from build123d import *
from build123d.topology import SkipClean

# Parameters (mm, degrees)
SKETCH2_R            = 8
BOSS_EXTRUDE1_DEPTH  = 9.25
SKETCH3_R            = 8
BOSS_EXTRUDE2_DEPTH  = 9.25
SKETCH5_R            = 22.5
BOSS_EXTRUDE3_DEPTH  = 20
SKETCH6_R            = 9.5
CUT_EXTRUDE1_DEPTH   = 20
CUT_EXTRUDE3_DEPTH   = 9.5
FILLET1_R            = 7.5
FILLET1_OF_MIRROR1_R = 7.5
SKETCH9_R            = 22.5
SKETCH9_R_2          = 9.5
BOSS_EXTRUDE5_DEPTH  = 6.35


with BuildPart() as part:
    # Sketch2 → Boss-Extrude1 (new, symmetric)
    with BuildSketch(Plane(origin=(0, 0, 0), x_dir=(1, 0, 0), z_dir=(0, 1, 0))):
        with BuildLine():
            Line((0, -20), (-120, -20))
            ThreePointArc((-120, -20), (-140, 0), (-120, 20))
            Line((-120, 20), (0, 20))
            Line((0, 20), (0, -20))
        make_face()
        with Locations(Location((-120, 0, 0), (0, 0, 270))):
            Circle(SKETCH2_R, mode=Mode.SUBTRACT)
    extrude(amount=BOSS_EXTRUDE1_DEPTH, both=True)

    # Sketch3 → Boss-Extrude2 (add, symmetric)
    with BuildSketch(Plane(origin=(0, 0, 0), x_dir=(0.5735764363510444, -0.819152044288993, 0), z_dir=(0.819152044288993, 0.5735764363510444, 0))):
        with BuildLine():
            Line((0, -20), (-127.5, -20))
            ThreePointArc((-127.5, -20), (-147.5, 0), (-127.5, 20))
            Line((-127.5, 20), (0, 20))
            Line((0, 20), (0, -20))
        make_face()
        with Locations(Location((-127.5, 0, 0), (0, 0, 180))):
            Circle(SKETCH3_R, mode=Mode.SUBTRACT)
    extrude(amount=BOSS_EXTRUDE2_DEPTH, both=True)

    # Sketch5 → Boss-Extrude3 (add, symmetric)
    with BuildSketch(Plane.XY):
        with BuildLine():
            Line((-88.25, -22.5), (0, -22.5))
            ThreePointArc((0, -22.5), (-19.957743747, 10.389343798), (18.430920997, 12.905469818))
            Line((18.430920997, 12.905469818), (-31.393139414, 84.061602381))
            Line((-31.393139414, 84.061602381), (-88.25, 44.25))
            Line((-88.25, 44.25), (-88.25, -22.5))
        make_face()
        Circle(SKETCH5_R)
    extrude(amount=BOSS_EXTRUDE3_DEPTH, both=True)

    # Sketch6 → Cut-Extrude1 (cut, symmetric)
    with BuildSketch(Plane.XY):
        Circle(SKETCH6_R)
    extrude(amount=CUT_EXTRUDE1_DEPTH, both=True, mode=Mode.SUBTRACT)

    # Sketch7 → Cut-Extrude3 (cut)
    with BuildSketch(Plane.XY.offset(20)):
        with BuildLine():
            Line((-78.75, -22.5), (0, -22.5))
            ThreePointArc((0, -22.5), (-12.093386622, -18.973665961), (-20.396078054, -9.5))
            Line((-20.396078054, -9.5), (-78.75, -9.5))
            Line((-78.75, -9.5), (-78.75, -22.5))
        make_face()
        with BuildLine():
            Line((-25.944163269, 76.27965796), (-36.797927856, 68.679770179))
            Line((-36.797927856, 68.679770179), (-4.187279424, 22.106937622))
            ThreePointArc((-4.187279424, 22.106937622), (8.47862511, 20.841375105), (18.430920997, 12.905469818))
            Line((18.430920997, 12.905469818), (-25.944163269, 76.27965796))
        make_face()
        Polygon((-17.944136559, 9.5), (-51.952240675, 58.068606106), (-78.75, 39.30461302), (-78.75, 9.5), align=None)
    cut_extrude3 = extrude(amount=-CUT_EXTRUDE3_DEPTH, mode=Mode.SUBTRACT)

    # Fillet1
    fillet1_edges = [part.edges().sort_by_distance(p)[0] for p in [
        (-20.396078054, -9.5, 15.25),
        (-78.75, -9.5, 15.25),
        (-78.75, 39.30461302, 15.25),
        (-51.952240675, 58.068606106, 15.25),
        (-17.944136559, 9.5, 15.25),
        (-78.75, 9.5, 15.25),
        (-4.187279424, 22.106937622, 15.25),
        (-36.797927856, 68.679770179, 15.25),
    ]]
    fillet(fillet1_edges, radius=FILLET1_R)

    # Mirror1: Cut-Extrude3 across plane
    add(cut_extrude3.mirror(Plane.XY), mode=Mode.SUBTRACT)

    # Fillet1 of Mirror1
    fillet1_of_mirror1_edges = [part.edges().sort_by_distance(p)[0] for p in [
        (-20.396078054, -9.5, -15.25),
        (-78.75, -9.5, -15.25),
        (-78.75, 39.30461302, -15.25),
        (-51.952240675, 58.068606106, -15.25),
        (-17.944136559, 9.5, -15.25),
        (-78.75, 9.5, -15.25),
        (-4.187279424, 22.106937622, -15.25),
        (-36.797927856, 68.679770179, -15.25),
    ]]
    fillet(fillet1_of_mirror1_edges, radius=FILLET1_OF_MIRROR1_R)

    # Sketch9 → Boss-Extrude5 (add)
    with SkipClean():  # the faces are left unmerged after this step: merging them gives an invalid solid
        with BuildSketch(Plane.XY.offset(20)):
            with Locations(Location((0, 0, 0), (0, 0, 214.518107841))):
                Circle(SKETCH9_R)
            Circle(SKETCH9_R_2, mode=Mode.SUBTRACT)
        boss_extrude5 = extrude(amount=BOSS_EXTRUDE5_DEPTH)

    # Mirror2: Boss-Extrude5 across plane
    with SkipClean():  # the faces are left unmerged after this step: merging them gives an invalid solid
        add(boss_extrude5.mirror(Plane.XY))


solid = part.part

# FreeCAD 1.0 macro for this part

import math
import FreeCAD as App
import Part
import Sketcher
from FreeCAD import Vector
Q = App.Units.Quantity


def edges_at(feature, points):
    """Names of the edges that pass closest to the given points."""
    edges = feature.Shape.Edges
    near = lambda p: min(range(len(edges)), key=lambda i: edges[i].distToShape(Part.Vertex(*p))[0])
    return sorted({f"Edge{near(p) + 1}" for p in points})


def add_polygon(sketch, points):
    """Adds a closed chain of lines whose ends are joined by coincident constraints."""
    first, n = sketch.GeometryCount, len(points)
    for a, b in zip(points, points[1:] + points[:1]):
        sketch.addGeometry(Part.LineSegment(App.Vector(*a, 0), App.Vector(*b, 0)), False)
    for i in range(n):
        sketch.addConstraint(Sketcher.Constraint("Coincident", first + i, 2, first + (i + 1) % n, 1))

doc = App.newDocument("Part")
body = doc.addObject("PartDesign::Body", "Body")

# Sketch on XZ plane
sketch1 = body.newObject("Sketcher::SketchObject", "Sketch")
sketch1.AttachmentSupport = (doc.getObject("XZ_Plane"), [""])
sketch1.MapMode = "FlatFace"
sketch1.addGeometry(Part.LineSegment(Vector(-120, 20, 0), Vector(0, 20, 0)), False)
sketch1.addGeometry(Part.LineSegment(Vector(0, 20, 0), Vector(0, -20, 0)), False)
sketch1.addGeometry(Part.LineSegment(Vector(0, -20, 0), Vector(-120, -20, 0)), False)
sketch1.addGeometry(Part.ArcOfCircle(Part.Circle(Vector(-120, 0, 0), Vector(0, 0, 1), 20), math.radians(90), math.radians(270)), False)
sketch1.addGeometry(Part.Circle(Vector(-120, 0, 0), Vector(0, 0, 1), 8), False)
sketch1.addConstraint(Sketcher.Constraint("Coincident", 0, 2, 1, 1))
sketch1.addConstraint(Sketcher.Constraint("Coincident", 1, 2, 2, 1))
sketch1.addConstraint(Sketcher.Constraint("Tangent", 2, 2, 3, 2))
sketch1.addConstraint(Sketcher.Constraint("Tangent", 3, 1, 0, 1))
sketch1.addConstraint(Sketcher.Constraint("Horizontal", 0))
sketch1.addConstraint(Sketcher.Constraint("Vertical", 1))
sketch1.addConstraint(Sketcher.Constraint("Horizontal", 2))
sketch1.addConstraint(Sketcher.Constraint("Coincident", 4, 3, 3, 3))
sketch1.addConstraint(Sketcher.Constraint("Symmetric", 0, 2, 1, 2, -1, 1))
sketch1.addConstraint(Sketcher.Constraint("Diameter", 4, 16.0))
sketch1.addConstraint(Sketcher.Constraint("Radius", 3, 20.0))
sketch1.addConstraint(Sketcher.Constraint("DistanceX", 0, 1, 0, 2, 120.0))
pad1 = body.newObject("PartDesign::Pad", "Pad")
pad1.Profile = sketch1
pad1.Length = 18.5
pad1.Midplane = True

# Sketch on an angled plane
sketch2 = body.newObject("Sketcher::SketchObject", "Sketch001")
sketch2.Placement = App.Placement(Vector(0, 0, 0), App.Rotation(Vector(0.573576436, -0.819152044, 0), Vector(0, 0, -0.999999999), Vector(0.819152044, 0.573576436, 0), "ZXY"))
sketch2.addGeometry(Part.LineSegment(Vector(-127.5, -20, 0), Vector(0, -20, 0)), False)
sketch2.addGeometry(Part.LineSegment(Vector(0, -20, 0), Vector(0, 20, 0)), False)
sketch2.addGeometry(Part.LineSegment(Vector(0, 20, 0), Vector(-127.5, 20, 0)), False)
sketch2.addGeometry(Part.ArcOfCircle(Part.Circle(Vector(-127.5, 0, 0), Vector(0, 0, 1), 20), math.radians(90), math.radians(270)), False)
sketch2.addGeometry(Part.Circle(Vector(-127.5, 0, 0), Vector(0, 0, 1), 8), False)
sketch2.addConstraint(Sketcher.Constraint("Coincident", 0, 2, 1, 1))
sketch2.addConstraint(Sketcher.Constraint("Coincident", 1, 2, 2, 1))
sketch2.addConstraint(Sketcher.Constraint("Tangent", 2, 2, 3, 1))
sketch2.addConstraint(Sketcher.Constraint("Tangent", 3, 2, 0, 1))
sketch2.addConstraint(Sketcher.Constraint("Horizontal", 0))
sketch2.addConstraint(Sketcher.Constraint("Vertical", 1))
sketch2.addConstraint(Sketcher.Constraint("Horizontal", 2))
sketch2.addConstraint(Sketcher.Constraint("Coincident", 4, 3, 3, 3))
sketch2.addConstraint(Sketcher.Constraint("Symmetric", 0, 2, 1, 2, -1, 1))
sketch2.addConstraint(Sketcher.Constraint("Diameter", 4, 16.0))
sketch2.addConstraint(Sketcher.Constraint("Radius", 3, 20.0))
sketch2.addConstraint(Sketcher.Constraint("DistanceX", 0, 1, 0, 2, 127.5))
pad2 = body.newObject("PartDesign::Pad", "Pad001")
pad2.Profile = sketch2
pad2.Length = 18.5
pad2.Midplane = True

# Sketch on XY plane
sketch3 = body.newObject("Sketcher::SketchObject", "Sketch002")
sketch3.AttachmentSupport = (doc.getObject("XY_Plane"), [""])
sketch3.MapMode = "FlatFace"
sketch3.addGeometry(Part.LineSegment(Vector(-88.25, -22.5, 0), Vector(0, -22.5, 0)), False)
sketch3.addGeometry(Part.ArcOfCircle(Part.Circle(Vector(0, 0, 0), Vector(0, 0, 1), 22.5), math.radians(-90), math.radians(35)), False)
sketch3.addGeometry(Part.LineSegment(Vector(18.430921, 12.90547, 0), Vector(-31.393139, 84.061602, 0)), False)
sketch3.addGeometry(Part.LineSegment(Vector(-31.393139, 84.061602, 0), Vector(-88.25, 44.25, 0)), False)
sketch3.addGeometry(Part.LineSegment(Vector(-88.25, 44.25, 0), Vector(-88.25, -22.5, 0)), False)
sketch3.addConstraint(Sketcher.Constraint("Tangent", 0, 2, 1, 1))
sketch3.addConstraint(Sketcher.Constraint("Tangent", 1, 2, 2, 1))
sketch3.addConstraint(Sketcher.Constraint("Coincident", 2, 2, 3, 1))
sketch3.addConstraint(Sketcher.Constraint("Coincident", 3, 2, 4, 1))
sketch3.addConstraint(Sketcher.Constraint("Coincident", 4, 2, 0, 1))
sketch3.addConstraint(Sketcher.Constraint("Horizontal", 0))
sketch3.addConstraint(Sketcher.Constraint("Vertical", 4))
sketch3.addConstraint(Sketcher.Constraint("Coincident", 1, 3, -1, 1))
sketch3.addConstraint(Sketcher.Constraint("Perpendicular", 2, 3))
sketch3.addConstraint(Sketcher.Constraint("Radius", 1, 22.5))
sketch3.addConstraint(Sketcher.Constraint("Angle", 2, Q("125 deg")))
sketch3.addConstraint(Sketcher.Constraint("DistanceX", 0, 1, 0, 2, 88.25))
sketch3.addConstraint(Sketcher.Constraint("DistanceY", 4, 2, 4, 1, 66.75))
pad3 = body.newObject("PartDesign::Pad", "Pad002")
pad3.Profile = sketch3
pad3.Length = 40
pad3.Midplane = True

# Sketch on XY plane
sketch4 = body.newObject("Sketcher::SketchObject", "Sketch003")
sketch4.AttachmentSupport = (doc.getObject("XY_Plane"), [""])
sketch4.MapMode = "FlatFace"
sketch4.addGeometry(Part.Circle(Vector(0, 0, 0), Vector(0, 0, 1), 9.5), False)
sketch4.addConstraint(Sketcher.Constraint("Coincident", 0, 3, -1, 1))
sketch4.addConstraint(Sketcher.Constraint("Diameter", 0, 19.0))
pocket1 = body.newObject("PartDesign::Pocket", "Pocket")
pocket1.Profile = sketch4
pocket1.Length = 40
pocket1.Midplane = True

# Sketch on XY plane
sketch5 = body.newObject("Sketcher::SketchObject", "Sketch004")
sketch5.AttachmentSupport = (doc.getObject("XY_Plane"), [""])
sketch5.MapMode = "FlatFace"
sketch5.AttachmentOffset = App.Placement(Vector(0, 0, 20), App.Rotation())
sketch5.addGeometry(Part.LineSegment(Vector(-78.75, -22.5, 0), Vector(0, -22.5, 0)), False)  # 0
sketch5.addGeometry(Part.ArcOfCircle(Part.Circle(Vector(0, 0, 0), Vector(0, 0, 1), 22.5), math.radians(-155.025035), math.radians(-90)), False)  # 1
sketch5.addGeometry(Part.LineSegment(Vector(-20.396078, -9.5, 0), Vector(-78.75, -9.5, 0)), False)  # 2
sketch5.addGeometry(Part.LineSegment(Vector(-78.75, -9.5, 0), Vector(-78.75, -22.5, 0)), False)  # 3
sketch5.addGeometry(Part.LineSegment(Vector(-25.944163, 76.279658, 0), Vector(-36.797928, 68.67977, 0)), False)  # 4
sketch5.addGeometry(Part.LineSegment(Vector(-36.797928, 68.67977, 0), Vector(-4.187279, 22.106938, 0)), False)  # 5
sketch5.addGeometry(Part.ArcOfCircle(Part.Circle(Vector(0, 0, 0), Vector(0, 0, 1), 22.5), math.radians(35), math.radians(100.725348)), False)  # 6
sketch5.addGeometry(Part.LineSegment(Vector(18.430921, 12.90547, 0), Vector(-25.944163, 76.279658, 0)), False)  # 7
add_polygon(sketch5, [(-17.944137, 9.5), (-51.952241, 58.068606), (-78.75, 39.304613), (-78.75, 9.5)])  # lines 8-11
sketch5.addConstraint(Sketcher.Constraint("Tangent", 0, 2, 1, 2))
sketch5.addConstraint(Sketcher.Constraint("Coincident", 1, 1, 2, 1))
sketch5.addConstraint(Sketcher.Constraint("Coincident", 2, 2, 3, 1))
sketch5.addConstraint(Sketcher.Constraint("Coincident", 3, 2, 0, 1))
sketch5.addConstraint(Sketcher.Constraint("Coincident", 4, 2, 5, 1))
sketch5.addConstraint(Sketcher.Constraint("Coincident", 5, 2, 6, 2))
sketch5.addConstraint(Sketcher.Constraint("Tangent", 6, 1, 7, 1))
sketch5.addConstraint(Sketcher.Constraint("Coincident", 7, 2, 4, 1))
sketch5.addConstraint(Sketcher.Constraint("Horizontal", 0))
sketch5.addConstraint(Sketcher.Constraint("Horizontal", 2))
sketch5.addConstraint(Sketcher.Constraint("Vertical", 3))
sketch5.addConstraint(Sketcher.Constraint("Vertical", 10))
sketch5.addConstraint(Sketcher.Constraint("Horizontal", 11))
sketch5.addConstraint(Sketcher.Constraint("Coincident", 1, 3, -1, 1))
sketch5.addConstraint(Sketcher.Constraint("Coincident", 6, 3, -1, 1))
sketch5.addConstraint(Sketcher.Constraint("Equal", 1, 6))
sketch5.addConstraint(Sketcher.Constraint("Symmetric", 2, 2, 10, 2, -1))
sketch5.addConstraint(Sketcher.Constraint("Perpendicular", 4, 5))
sketch5.addConstraint(Sketcher.Constraint("Parallel", 5, 7))
sketch5.addConstraint(Sketcher.Constraint("Parallel", 7, 8))
sketch5.addConstraint(Sketcher.Constraint("Perpendicular", 8, 9))
sketch5.addConstraint(Sketcher.Constraint("Radius", 1, 22.5))
sketch5.addConstraint(Sketcher.Constraint("DistanceY", 3, 2, 3, 1, 13.0))
sketch5.addConstraint(Sketcher.Constraint("Angle", 4, Q("-145 deg")))
sketch5.addConstraint(Sketcher.Constraint("DistanceX", 0, 1, 0, 2, 78.75))
sketch5.addConstraint(Sketcher.Constraint("Distance", 4, 13.25))
sketch5.addConstraint(Sketcher.Constraint("Distance", 7, 77.365598))
sketch5.addConstraint(Sketcher.Constraint("Distance", 8, 59.29132))
sketch5.addConstraint(Sketcher.Constraint("DistanceX", 11, 1, 11, 2, 60.805863))
pocket2 = body.newObject("PartDesign::Pocket", "Pocket001")
pocket2.Profile = sketch5
pocket2.Length = 9.5
doc.recompute()

fillet = body.newObject("PartDesign::Fillet", "Fillet")
fillet.Base = (pocket2, edges_at(pocket2, [
    (-20.396, -9.5, 15.25),
    (-78.75, -9.5, 15.25),
    (-78.75, 39.305, 15.25),
    (-51.952, 58.069, 15.25),
    (-17.944, 9.5, 15.25),
    (-78.75, 9.5, 15.25),
    (-4.187, 22.107, 15.25),
    (-36.798, 68.68, 15.25),
]))
fillet.Radius = 7.5
doc.recompute()

mirrored = body.newObject("PartDesign::Mirrored", "Mirrored")
mirrored.Originals = [pocket2]
mirrored.MirrorPlane = (doc.getObject("XY_Plane"), [""])
body.Tip = mirrored
doc.recompute()

fillet2 = body.newObject("PartDesign::Fillet", "Fillet001")
fillet2.Base = (mirrored, edges_at(mirrored, [
    (-20.396, -9.5, -15.25),
    (-78.75, -9.5, -15.25),
    (-78.75, 39.305, -15.25),
    (-51.952, 58.069, -15.25),
    (-17.944, 9.5, -15.25),
    (-78.75, 9.5, -15.25),
    (-4.187, 22.107, -15.25),
    (-36.798, 68.68, -15.25),
]))
fillet2.Radius = 7.5

# Sketch on XY plane
sketch6 = body.newObject("Sketcher::SketchObject", "Sketch005")
sketch6.AttachmentSupport = (doc.getObject("XY_Plane"), [""])
sketch6.MapMode = "FlatFace"
sketch6.AttachmentOffset = App.Placement(Vector(0, 0, 20), App.Rotation())
sketch6.addGeometry(Part.Circle(Vector(0, 0, 0), Vector(0, 0, 1), 22.5), False)
sketch6.addGeometry(Part.Circle(Vector(0, 0, 0), Vector(0, 0, 1), 9.5), False)
sketch6.addConstraint(Sketcher.Constraint("Coincident", 0, 3, -1, 1))
sketch6.addConstraint(Sketcher.Constraint("Coincident", 1, 3, -1, 1))
sketch6.addConstraint(Sketcher.Constraint("Diameter", 0, 45.0))
sketch6.addConstraint(Sketcher.Constraint("Diameter", 1, 19.0))
pad4 = body.newObject("PartDesign::Pad", "Pad003")
pad4.Profile = sketch6
pad4.Length = 6.35
doc.recompute()

mirrored2 = body.newObject("PartDesign::Mirrored", "Mirrored001")
mirrored2.Originals = [pad4]
mirrored2.MirrorPlane = (doc.getObject("XY_Plane"), [""])
body.Tip = mirrored2

doc.recompute()
